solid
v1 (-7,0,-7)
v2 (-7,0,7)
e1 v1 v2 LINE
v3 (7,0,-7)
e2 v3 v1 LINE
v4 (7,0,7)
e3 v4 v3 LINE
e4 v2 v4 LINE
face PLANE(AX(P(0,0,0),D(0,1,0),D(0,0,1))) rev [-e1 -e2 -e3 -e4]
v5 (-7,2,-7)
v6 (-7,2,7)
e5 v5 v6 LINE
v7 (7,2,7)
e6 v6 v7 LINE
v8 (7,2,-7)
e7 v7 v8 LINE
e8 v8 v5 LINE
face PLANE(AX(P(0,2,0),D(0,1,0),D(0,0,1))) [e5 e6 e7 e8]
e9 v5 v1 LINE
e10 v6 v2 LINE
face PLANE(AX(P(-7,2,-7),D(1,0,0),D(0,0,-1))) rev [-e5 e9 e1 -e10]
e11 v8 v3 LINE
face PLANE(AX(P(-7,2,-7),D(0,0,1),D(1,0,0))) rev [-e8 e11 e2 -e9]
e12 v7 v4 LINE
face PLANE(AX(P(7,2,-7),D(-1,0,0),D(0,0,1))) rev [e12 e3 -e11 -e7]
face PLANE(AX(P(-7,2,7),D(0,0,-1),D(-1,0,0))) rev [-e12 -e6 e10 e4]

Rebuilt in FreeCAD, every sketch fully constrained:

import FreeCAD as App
import Part
import Sketcher

V = App.Vector

doc = App.newDocument("Part")
params = doc.addObject("Spreadsheet::Sheet", "Params")
for row, (alias, value) in enumerate([
    ("sketch1_width", "14 mm"),
    ("pad1_length", "2 mm"),
], start=1):
    params.set(f"A{row}", alias)
    params.set(f"B{row}", "=" + value)
    params.setAlias(f"B{row}", alias)

body = doc.addObject("PartDesign::Body", "Body")

sketch1 = doc.addObject("Sketcher::SketchObject", "Sketch")
body.addObject(sketch1)
sketch1.AttachmentSupport = (doc.XZ_Plane, [""])
sketch1.MapMode = "FlatFace"
sketch1.addGeometry([
    Part.LineSegment(V(-7, -7, 0), V(-7, 7, 0)),
    Part.LineSegment(V(-7, 7, 0), V(7, 7, 0)),
    Part.LineSegment(V(7, 7, 0), V(7, -7, 0)),
    Part.LineSegment(V(7, -7, 0), V(-7, -7, 0)),
], False)
sketch1.addConstraint([
    Sketcher.Constraint("Coincident", 0, 2, 1, 1),
    Sketcher.Constraint("Coincident", 1, 2, 2, 1),
    Sketcher.Constraint("Coincident", 2, 2, 3, 1),
    Sketcher.Constraint("Coincident", 3, 2, 0, 1),
    Sketcher.Constraint("Vertical", 0),
    Sketcher.Constraint("Horizontal", 1),
    Sketcher.Constraint("Vertical", 2),
    Sketcher.Constraint("Horizontal", 3),
    Sketcher.Constraint("Symmetric", 0, 2, 2, 2, -1, 1),
    Sketcher.Constraint("Equal", 3, 0),
    Sketcher.Constraint("DistanceX", 1, 1, 1, 2, 14.0),
])
sketch1.setExpression("Constraints[10]", "Params.sketch1_width")
pad1 = doc.addObject("PartDesign::Pad", "Pad")
body.addObject(pad1)
pad1.Profile = sketch1
pad1.setExpression("Length", "Params.pad1_length")
pad1.Reversed = True

doc.recompute()
